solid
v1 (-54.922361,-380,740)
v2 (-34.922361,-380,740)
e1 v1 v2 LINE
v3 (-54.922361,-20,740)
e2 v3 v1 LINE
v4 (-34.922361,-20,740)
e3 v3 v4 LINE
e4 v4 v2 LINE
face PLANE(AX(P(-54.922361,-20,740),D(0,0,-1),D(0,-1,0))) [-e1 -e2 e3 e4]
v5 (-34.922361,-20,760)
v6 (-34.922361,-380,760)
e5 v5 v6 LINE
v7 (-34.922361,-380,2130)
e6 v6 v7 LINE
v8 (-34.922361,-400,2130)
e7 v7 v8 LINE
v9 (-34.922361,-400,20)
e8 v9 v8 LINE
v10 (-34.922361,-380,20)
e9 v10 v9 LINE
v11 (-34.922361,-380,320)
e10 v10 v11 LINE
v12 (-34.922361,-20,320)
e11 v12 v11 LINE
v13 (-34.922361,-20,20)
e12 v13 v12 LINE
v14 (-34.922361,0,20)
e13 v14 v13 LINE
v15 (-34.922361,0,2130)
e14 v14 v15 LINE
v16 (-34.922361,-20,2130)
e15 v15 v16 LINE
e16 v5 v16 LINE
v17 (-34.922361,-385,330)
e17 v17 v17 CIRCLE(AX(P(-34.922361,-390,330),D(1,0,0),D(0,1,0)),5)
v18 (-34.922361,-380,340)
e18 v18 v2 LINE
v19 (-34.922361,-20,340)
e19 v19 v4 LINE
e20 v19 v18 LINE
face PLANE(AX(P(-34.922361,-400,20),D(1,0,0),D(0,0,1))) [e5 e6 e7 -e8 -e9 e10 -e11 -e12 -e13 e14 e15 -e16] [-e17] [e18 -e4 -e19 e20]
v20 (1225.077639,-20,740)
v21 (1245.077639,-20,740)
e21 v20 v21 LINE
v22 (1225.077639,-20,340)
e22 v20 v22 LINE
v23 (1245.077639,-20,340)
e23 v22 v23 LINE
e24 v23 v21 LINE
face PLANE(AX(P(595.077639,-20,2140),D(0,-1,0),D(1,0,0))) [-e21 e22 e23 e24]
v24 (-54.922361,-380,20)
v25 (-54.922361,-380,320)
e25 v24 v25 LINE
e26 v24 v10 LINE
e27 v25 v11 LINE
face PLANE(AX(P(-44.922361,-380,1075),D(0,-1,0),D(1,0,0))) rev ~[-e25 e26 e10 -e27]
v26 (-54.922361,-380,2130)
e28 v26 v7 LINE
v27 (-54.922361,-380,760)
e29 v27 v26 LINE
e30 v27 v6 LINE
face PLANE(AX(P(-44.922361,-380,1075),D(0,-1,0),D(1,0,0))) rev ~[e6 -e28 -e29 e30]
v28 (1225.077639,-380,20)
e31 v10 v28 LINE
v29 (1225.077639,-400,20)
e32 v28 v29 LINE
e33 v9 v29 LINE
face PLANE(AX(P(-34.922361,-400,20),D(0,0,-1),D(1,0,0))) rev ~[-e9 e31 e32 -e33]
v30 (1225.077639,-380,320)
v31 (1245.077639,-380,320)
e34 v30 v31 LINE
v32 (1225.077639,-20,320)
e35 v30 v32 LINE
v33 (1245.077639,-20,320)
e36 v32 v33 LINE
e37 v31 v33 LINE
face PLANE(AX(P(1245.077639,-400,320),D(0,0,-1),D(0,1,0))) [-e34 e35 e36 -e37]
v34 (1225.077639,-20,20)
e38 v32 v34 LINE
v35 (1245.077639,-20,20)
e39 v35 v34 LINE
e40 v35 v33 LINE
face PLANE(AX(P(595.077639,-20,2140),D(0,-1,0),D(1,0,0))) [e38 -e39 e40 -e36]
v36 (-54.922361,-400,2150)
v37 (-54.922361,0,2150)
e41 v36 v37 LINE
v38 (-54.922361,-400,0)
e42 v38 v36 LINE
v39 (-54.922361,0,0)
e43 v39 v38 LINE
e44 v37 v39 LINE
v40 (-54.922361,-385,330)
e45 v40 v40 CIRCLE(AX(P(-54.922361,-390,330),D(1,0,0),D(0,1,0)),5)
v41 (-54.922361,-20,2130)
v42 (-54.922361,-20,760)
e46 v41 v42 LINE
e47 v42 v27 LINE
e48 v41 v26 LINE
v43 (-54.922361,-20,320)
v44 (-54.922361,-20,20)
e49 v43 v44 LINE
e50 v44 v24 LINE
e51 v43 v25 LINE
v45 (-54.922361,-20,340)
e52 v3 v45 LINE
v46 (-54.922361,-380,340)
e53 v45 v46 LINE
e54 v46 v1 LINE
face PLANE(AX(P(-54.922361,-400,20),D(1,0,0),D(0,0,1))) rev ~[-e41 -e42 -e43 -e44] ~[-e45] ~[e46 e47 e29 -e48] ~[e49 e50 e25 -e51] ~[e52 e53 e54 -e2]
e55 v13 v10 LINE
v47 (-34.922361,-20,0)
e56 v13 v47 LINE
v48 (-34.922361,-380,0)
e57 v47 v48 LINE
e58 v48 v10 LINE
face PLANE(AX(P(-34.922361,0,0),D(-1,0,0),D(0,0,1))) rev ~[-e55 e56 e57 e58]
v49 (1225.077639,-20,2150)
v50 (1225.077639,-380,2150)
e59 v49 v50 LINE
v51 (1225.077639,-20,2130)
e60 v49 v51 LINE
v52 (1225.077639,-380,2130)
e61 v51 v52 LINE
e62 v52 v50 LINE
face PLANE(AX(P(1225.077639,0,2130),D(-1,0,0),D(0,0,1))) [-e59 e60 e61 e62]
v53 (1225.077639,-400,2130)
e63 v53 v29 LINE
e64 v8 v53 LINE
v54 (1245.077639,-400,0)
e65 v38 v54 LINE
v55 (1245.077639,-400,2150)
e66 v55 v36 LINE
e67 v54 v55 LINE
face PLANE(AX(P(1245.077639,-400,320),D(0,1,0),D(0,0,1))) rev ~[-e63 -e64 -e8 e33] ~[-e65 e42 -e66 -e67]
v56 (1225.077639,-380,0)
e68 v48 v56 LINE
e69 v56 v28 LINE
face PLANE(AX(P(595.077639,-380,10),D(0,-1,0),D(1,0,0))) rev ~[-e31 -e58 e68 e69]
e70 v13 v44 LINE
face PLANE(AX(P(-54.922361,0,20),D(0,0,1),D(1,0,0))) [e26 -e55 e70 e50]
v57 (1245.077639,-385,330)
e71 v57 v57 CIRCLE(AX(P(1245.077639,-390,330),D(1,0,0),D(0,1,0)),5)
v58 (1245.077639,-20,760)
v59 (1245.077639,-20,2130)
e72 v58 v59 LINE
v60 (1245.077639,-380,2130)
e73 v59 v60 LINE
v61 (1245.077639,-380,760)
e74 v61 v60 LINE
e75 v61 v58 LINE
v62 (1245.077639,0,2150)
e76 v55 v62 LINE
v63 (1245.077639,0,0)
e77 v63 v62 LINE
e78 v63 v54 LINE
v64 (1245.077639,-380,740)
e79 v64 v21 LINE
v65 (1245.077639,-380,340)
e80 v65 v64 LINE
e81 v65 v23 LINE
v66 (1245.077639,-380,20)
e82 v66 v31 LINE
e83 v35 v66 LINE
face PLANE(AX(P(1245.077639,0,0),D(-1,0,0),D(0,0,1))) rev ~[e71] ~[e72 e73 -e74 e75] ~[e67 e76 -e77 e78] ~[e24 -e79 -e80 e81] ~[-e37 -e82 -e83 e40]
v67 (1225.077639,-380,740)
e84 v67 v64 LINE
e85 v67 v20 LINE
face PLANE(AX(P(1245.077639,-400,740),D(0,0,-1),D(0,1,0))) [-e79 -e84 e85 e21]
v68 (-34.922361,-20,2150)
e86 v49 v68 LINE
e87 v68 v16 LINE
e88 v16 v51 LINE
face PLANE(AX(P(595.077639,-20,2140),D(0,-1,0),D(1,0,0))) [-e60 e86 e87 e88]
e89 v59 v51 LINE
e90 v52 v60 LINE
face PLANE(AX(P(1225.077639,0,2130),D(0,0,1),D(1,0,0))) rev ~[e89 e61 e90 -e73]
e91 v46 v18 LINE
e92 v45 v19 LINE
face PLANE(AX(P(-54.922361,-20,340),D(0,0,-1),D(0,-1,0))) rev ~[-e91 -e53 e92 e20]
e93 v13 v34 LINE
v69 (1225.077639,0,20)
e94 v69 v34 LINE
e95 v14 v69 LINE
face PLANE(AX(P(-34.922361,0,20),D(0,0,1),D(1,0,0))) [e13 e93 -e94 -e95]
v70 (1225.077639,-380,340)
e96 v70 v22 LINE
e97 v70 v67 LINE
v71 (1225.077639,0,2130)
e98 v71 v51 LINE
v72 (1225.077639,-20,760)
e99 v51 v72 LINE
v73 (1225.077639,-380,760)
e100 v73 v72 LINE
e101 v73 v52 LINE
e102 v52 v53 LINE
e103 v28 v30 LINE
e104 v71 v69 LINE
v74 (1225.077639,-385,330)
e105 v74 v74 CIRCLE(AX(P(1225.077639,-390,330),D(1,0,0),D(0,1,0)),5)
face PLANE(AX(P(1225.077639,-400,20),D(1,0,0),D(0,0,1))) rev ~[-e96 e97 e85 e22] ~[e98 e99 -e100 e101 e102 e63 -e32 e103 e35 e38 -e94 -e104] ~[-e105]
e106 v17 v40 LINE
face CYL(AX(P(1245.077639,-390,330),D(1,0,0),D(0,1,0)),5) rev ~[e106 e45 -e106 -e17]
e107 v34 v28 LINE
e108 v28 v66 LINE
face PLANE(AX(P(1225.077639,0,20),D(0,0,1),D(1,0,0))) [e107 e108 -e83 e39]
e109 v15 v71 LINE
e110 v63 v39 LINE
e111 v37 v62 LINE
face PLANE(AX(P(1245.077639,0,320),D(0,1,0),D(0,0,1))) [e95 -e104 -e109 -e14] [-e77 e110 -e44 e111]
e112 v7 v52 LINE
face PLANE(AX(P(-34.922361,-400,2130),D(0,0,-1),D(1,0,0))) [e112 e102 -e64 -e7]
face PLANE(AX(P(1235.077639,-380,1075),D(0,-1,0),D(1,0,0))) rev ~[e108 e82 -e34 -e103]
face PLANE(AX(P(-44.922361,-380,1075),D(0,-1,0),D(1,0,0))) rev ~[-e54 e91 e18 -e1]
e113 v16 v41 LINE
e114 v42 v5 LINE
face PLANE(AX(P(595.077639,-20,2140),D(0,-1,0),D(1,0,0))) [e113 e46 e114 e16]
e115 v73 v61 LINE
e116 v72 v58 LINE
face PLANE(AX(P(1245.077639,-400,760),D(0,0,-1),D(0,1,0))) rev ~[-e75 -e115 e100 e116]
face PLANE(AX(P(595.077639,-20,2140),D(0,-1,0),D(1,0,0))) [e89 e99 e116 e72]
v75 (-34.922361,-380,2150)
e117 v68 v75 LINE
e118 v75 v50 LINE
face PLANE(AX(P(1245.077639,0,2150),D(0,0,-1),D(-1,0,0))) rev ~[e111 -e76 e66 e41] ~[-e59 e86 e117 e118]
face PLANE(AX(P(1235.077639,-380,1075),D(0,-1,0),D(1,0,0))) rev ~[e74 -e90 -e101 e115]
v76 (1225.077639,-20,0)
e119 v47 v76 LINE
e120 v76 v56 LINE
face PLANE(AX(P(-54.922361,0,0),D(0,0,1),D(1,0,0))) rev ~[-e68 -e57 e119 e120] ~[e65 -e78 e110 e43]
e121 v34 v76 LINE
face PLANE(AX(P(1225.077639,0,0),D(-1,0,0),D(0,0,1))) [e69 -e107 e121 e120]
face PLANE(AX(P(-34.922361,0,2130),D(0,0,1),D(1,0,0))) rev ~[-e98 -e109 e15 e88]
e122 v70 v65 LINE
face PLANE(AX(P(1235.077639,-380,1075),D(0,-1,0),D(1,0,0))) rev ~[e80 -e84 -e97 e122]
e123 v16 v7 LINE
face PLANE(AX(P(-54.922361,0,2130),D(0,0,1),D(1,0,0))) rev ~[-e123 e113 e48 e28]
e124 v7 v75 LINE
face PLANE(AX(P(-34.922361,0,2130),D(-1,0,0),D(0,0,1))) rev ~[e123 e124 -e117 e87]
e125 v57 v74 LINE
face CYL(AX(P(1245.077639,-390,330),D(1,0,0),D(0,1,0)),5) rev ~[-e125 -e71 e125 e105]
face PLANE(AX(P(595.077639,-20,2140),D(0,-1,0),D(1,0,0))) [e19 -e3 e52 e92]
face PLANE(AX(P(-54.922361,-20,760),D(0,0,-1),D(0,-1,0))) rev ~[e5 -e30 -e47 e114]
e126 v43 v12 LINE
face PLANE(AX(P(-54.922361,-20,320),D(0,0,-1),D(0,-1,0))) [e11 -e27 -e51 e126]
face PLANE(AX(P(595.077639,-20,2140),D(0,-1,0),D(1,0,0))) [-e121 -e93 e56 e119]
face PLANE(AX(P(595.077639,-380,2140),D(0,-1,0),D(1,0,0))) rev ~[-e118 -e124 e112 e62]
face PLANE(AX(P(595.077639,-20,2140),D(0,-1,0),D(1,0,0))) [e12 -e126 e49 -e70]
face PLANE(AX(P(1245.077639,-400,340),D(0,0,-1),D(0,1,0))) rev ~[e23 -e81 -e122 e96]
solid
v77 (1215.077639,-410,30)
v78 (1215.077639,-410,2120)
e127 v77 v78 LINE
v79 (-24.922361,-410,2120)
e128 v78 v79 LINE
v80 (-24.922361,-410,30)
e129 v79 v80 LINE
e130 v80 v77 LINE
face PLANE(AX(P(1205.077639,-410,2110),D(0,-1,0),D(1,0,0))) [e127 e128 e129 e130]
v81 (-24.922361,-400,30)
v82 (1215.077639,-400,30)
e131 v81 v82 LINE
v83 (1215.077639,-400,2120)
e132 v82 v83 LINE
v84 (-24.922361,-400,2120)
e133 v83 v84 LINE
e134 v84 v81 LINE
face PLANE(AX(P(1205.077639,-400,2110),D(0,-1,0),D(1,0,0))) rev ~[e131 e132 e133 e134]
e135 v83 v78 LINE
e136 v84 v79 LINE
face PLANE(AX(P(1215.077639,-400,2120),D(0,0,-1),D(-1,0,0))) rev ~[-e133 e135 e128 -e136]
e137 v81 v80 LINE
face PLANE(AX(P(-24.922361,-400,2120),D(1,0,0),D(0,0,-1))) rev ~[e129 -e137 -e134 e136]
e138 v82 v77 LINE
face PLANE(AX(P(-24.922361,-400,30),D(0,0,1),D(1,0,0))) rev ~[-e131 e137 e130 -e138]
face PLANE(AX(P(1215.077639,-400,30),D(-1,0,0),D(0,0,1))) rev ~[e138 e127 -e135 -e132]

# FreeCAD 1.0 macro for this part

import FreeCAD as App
import Part
import Sketcher
Q = App.Units.Quantity


def add_polygon(sketch, points):
    """Adds a closed chain of lines whose ends are joined by coincident constraints."""
    first, n = sketch.GeometryCount, len(points)
    for a, b in zip(points, points[1:] + points[:1]):
        sketch.addGeometry(Part.LineSegment(App.Vector(*a, 0), App.Vector(*b, 0)), False)
    for i in range(n):
        sketch.addConstraint(Sketcher.Constraint("Coincident", first + i, 2, first + (i + 1) % n, 1))

doc = App.newDocument("Part")
body = doc.addObject("PartDesign::Body", "Body")

sketch1 = body.newObject("Sketcher::SketchObject", "Sketch")
sketch1.AttachmentSupport = (doc.getObject("XZ_Plane"), [""])
sketch1.MapMode = "FlatFace"
add_polygon(sketch1, [(-55, 2150), (-55, 0), (1245, 0), (1245, 2150)])
add_polygon(sketch1, [(1225, 20), (-35, 20), (-35, 2130), (1225, 2130)])
sketch1.addConstraint([
    Sketcher.Constraint("Vertical", 0),
    Sketcher.Constraint("Horizontal", 1),
    Sketcher.Constraint("Vertical", 2),
    Sketcher.Constraint("Horizontal", 3),
    Sketcher.Constraint("Horizontal", 4),
    Sketcher.Constraint("Vertical", 5),
    Sketcher.Constraint("Horizontal", 6),
    Sketcher.Constraint("Vertical", 7),
    Sketcher.Constraint("PointOnObject", 0, 2, -1),
    Sketcher.Constraint("DistanceX", 1, 1, 1, 2, Q("1300 mm")),
    Sketcher.Constraint("DistanceX", 4, 2, 4, 1, Q("1260 mm")),
    Sketcher.Constraint("DistanceY", 0, 2, 0, 1, Q("2150 mm")),
    Sketcher.Constraint("DistanceY", 5, 1, 5, 2, Q("2110 mm")),
    Sketcher.Constraint("DistanceY", -1, 1, 4, 2, Q("20 mm")),
    Sketcher.Constraint("DistanceX", 0, 2, 4, 2, Q("20 mm")),
    Sketcher.Constraint("DistanceX", 0, 2, -1, 1, Q("54.922361 mm")),
])
pad1 = body.newObject("PartDesign::Pad", "Pad")
pad1.Profile = sketch1
pad1.Length = 20

sketch2 = body.newObject("Sketcher::SketchObject", "Sketch001")
sketch2.AttachmentSupport = (doc.getObject("XZ_Plane"), [""])
sketch2.MapMode = "FlatFace"
add_polygon(sketch2, [(-55, 20), (-55, 0), (-35, 0), (-35, 20)])
add_polygon(sketch2, [(1225, 20), (1225, 0), (1245, 0), (1245, 20)])
add_polygon(sketch2, [(-55, 2150), (-55, 2130), (-35, 2130), (-35, 2150)])
add_polygon(sketch2, [(1225, 2150), (1225, 2130), (1245, 2130), (1245, 2150)])
sketch2.addConstraint([
    Sketcher.Constraint("Vertical", 0),
    Sketcher.Constraint("Horizontal", 1),
    Sketcher.Constraint("Vertical", 2),
    Sketcher.Constraint("Horizontal", 3),
    Sketcher.Constraint("Vertical", 4),
    Sketcher.Constraint("Horizontal", 5),
    Sketcher.Constraint("Vertical", 6),
    Sketcher.Constraint("Horizontal", 7),
    Sketcher.Constraint("Vertical", 8),
    Sketcher.Constraint("Horizontal", 9),
    Sketcher.Constraint("Vertical", 10),
    Sketcher.Constraint("Horizontal", 11),
    Sketcher.Constraint("Vertical", 12),
    Sketcher.Constraint("Horizontal", 13),
    Sketcher.Constraint("Vertical", 14),
    Sketcher.Constraint("Horizontal", 15),
    Sketcher.Constraint("PointOnObject", 0, 2, -1),
    Sketcher.Constraint("PointOnObject", 4, 2, -1),
    Sketcher.Constraint("Horizontal", 3, 2, 6, 2),
    Sketcher.Constraint("Horizontal", 9, 2, 12, 2),
    Sketcher.Constraint("Horizontal", 11, 2, 14, 2),
    Sketcher.Constraint("Vertical", 3, 2, 8, 2),
    Sketcher.Constraint("Vertical", 2, 2, 9, 2),
    Sketcher.Constraint("Vertical", 7, 2, 12, 2),
    Sketcher.Constraint("Vertical", 6, 2, 13, 2),
    Sketcher.Constraint("Equal", 3, 5),
    Sketcher.Constraint("Equal", 15, 0),
    Sketcher.Constraint("Equal", 6, 8),
    Sketcher.Constraint("DistanceX", 1, 1, 1, 2, Q("20 mm")),
    Sketcher.Constraint("DistanceY", -1, 1, 8, 2, Q("2130 mm")),
    Sketcher.Constraint("DistanceX", 1, 2, 4, 2, Q("1260 mm")),
    Sketcher.Constraint("DistanceX", 0, 2, -1, 1, Q("54.922361 mm")),
])
pad2 = body.newObject("PartDesign::Pad", "Pad001")
pad2.Profile = sketch2
pad2.Length = 400

sketch3 = body.newObject("Sketcher::SketchObject", "Sketch002")
sketch3.AttachmentSupport = (doc.getObject("XZ_Plane"), [""])
sketch3.MapMode = "FlatFace"
sketch3.AttachmentOffset = App.Placement(App.Vector(0, 0, 400), App.Rotation())
add_polygon(sketch3, [(-55, 2130), (-55, 20), (-35, 20), (-35, 2130)])
add_polygon(sketch3, [(-35, 20), (-35, 0), (1225, 0), (1225, 20)])
add_polygon(sketch3, [(1225, 2130), (1225, 20), (1245, 20), (1245, 2130)])
add_polygon(sketch3, [(-35, 2150), (-35, 2130), (1225, 2130), (1225, 2150)])
sketch3.addConstraint([
    Sketcher.Constraint("Vertical", 0),
    Sketcher.Constraint("Horizontal", 1),
    Sketcher.Constraint("Vertical", 2),
    Sketcher.Constraint("Horizontal", 3),
    Sketcher.Constraint("Vertical", 4),
    Sketcher.Constraint("Horizontal", 5),
    Sketcher.Constraint("Vertical", 6),
    Sketcher.Constraint("Horizontal", 7),
    Sketcher.Constraint("Vertical", 8),
    Sketcher.Constraint("Horizontal", 9),
    Sketcher.Constraint("Vertical", 10),
    Sketcher.Constraint("Horizontal", 11),
    Sketcher.Constraint("Vertical", 12),
    Sketcher.Constraint("Horizontal", 13),
    Sketcher.Constraint("Vertical", 14),
    Sketcher.Constraint("Horizontal", 15),
    Sketcher.Constraint("Coincident", 7, 2, 1, 2),
    Sketcher.Constraint("Coincident", 8, 2, 6, 2),
    Sketcher.Constraint("Coincident", 12, 2, 2, 2),
    Sketcher.Constraint("Coincident", 13, 2, 11, 2),
    Sketcher.Constraint("PointOnObject", 4, 2, -1),
    Sketcher.Constraint("Equal", 3, 9),
    Sketcher.Constraint("Equal", 11, 4),
    Sketcher.Constraint("Equal", 6, 12),
    Sketcher.Constraint("DistanceX", 1, 1, 1, 2, Q("20 mm")),
    Sketcher.Constraint("DistanceX", 5, 1, 5, 2, Q("1260 mm")),
    Sketcher.Constraint("DistanceY", 0, 2, 0, 1, Q("2110 mm")),
    Sketcher.Constraint("DistanceX", 0, 2, -1, 1, Q("54.922361 mm")),
])
pad3 = body.newObject("PartDesign::Pad", "Pad002")
pad3.Profile = sketch3
pad3.Length = 20
pad3.Reversed = True

sketch4 = body.newObject("Sketcher::SketchObject", "Sketch003")
sketch4.AttachmentSupport = (doc.getObject("YZ_Plane"), [""])
sketch4.MapMode = "FlatFace"
sketch4.AttachmentOffset = App.Placement(App.Vector(0, 0, 1245.077639), App.Rotation())
add_polygon(sketch4, [(-400, 340), (-400, 320), (0, 320), (0, 340)])
add_polygon(sketch4, [(-400, 760), (-400, 740), (0, 740), (0, 760)])
sketch4.addConstraint([
    Sketcher.Constraint("Vertical", 0),
    Sketcher.Constraint("Horizontal", 1),
    Sketcher.Constraint("Vertical", 2),
    Sketcher.Constraint("Horizontal", 3),
    Sketcher.Constraint("Vertical", 4),
    Sketcher.Constraint("Horizontal", 5),
    Sketcher.Constraint("Vertical", 6),
    Sketcher.Constraint("Horizontal", 7),
    Sketcher.Constraint("PointOnObject", 1, 2, -2),
    Sketcher.Constraint("PointOnObject", 5, 2, -2),
    Sketcher.Constraint("Vertical", 3, 2, 4, 2),
    Sketcher.Constraint("Equal", 2, 4),
    Sketcher.Constraint("DistanceX", 1, 1, 1, 2, Q("400 mm")),
    Sketcher.Constraint("DistanceY", 0, 2, 0, 1, Q("20 mm")),
    Sketcher.Constraint("DistanceY", -1, 1, 0, 2, Q("320 mm")),
    Sketcher.Constraint("DistanceY", -1, 1, 4, 2, Q("740 mm")),
])
pad4 = body.newObject("PartDesign::Pad", "Pad003")
pad4.Profile = sketch4
pad4.Length = 20
pad4.Reversed = True

sketch5 = body.newObject("Sketcher::SketchObject", "Sketch004")
sketch5.AttachmentSupport = (doc.getObject("YZ_Plane"), [""])
sketch5.MapMode = "FlatFace"
sketch5.AttachmentOffset = App.Placement(App.Vector(0, 0, 1245.077639), App.Rotation())
add_polygon(sketch5, [(-400, 340), (-400, 320), (0, 320), (0, 340)])
add_polygon(sketch5, [(-400, 760), (-400, 740), (0, 740), (0, 760)])
sketch5.addConstraint([
    Sketcher.Constraint("Vertical", 0),
    Sketcher.Constraint("Horizontal", 1),
    Sketcher.Constraint("Vertical", 2),
    Sketcher.Constraint("Horizontal", 3),
    Sketcher.Constraint("Vertical", 4),
    Sketcher.Constraint("Horizontal", 5),
    Sketcher.Constraint("Vertical", 6),
    Sketcher.Constraint("Horizontal", 7),
    Sketcher.Constraint("PointOnObject", 1, 2, -2),
    Sketcher.Constraint("PointOnObject", 5, 2, -2),
    Sketcher.Constraint("Vertical", 3, 2, 4, 2),
    Sketcher.Constraint("Equal", 2, 4),
    Sketcher.Constraint("DistanceX", 1, 1, 1, 2, Q("400 mm")),
    Sketcher.Constraint("DistanceY", 0, 2, 0, 1, Q("20 mm")),
    Sketcher.Constraint("DistanceY", -1, 1, 0, 2, Q("320 mm")),
    Sketcher.Constraint("DistanceY", -1, 1, 4, 2, Q("740 mm")),
])
pad5 = body.newObject("PartDesign::Pad", "Pad004")
pad5.Profile = sketch5
pad5.Length = 20
pad5.Reversed = True

sketch6 = body.newObject("Sketcher::SketchObject", "Sketch005")
sketch6.AttachmentSupport = (doc.getObject("YZ_Plane"), [""])
sketch6.MapMode = "FlatFace"
sketch6.AttachmentOffset = App.Placement(App.Vector(0, 0, -54.922361), App.Rotation())
add_polygon(sketch6, [(-20, 760), (-20, 740), (-380, 740), (-380, 760)])
add_polygon(sketch6, [(-20, 340), (-20, 320), (-380, 320), (-380, 340)])
sketch6.addConstraint([
    Sketcher.Constraint("Vertical", 0),
    Sketcher.Constraint("Horizontal", 1),
    Sketcher.Constraint("Vertical", 2),
    Sketcher.Constraint("Horizontal", 3),
    Sketcher.Constraint("Vertical", 4),
    Sketcher.Constraint("Horizontal", 5),
    Sketcher.Constraint("Vertical", 6),
    Sketcher.Constraint("Horizontal", 7),
    Sketcher.Constraint("Vertical", 3, 2, 4, 2),
    Sketcher.Constraint("Vertical", 2, 2, 5, 2),
    Sketcher.Constraint("Equal", 2, 4),
    Sketcher.Constraint("DistanceX", 1, 2, 1, 1, Q("360 mm")),
    Sketcher.Constraint("DistanceY", 0, 2, 0, 1, Q("20 mm")),
    Sketcher.Constraint("DistanceX", 0, 2, -1, 1, Q("20 mm")),
    Sketcher.Constraint("DistanceY", -1, 1, 0, 2, Q("740 mm")),
    Sketcher.Constraint("DistanceY", -1, 1, 4, 2, Q("320 mm")),
])
pad6 = body.newObject("PartDesign::Pad", "Pad005")
pad6.Profile = sketch6
pad6.Length = 20

sketch7 = body.newObject("Sketcher::SketchObject", "Sketch006")
sketch7.AttachmentSupport = (doc.getObject("YZ_Plane"), [""])
sketch7.MapMode = "FlatFace"
sketch7.AttachmentOffset = App.Placement(App.Vector(0, 0, 1245.077639), App.Rotation())
sketch7.addGeometry(Part.Circle(App.Vector(-390, 330, 0), App.Vector(0, 0, 1), 5), False)
sketch7.addConstraint([
    Sketcher.Constraint("Diameter", 0, Q("10 mm")),
    Sketcher.Constraint("DistanceX", 0, 3, -1, 1, Q("390 mm")),
    Sketcher.Constraint("DistanceY", -1, 1, 0, 3, Q("330 mm")),
])
pocket1 = body.newObject("PartDesign::Pocket", "Pocket")
pocket1.Profile = sketch7
pocket1.Type = "ThroughAll"
body2 = doc.addObject("PartDesign::Body", "Body001")

sketch8 = body2.newObject("Sketcher::SketchObject", "Sketch007")
sketch8.AttachmentSupport = (doc.getObject("XZ_Plane001"), [""])
sketch8.MapMode = "FlatFace"
sketch8.AttachmentOffset = App.Placement(App.Vector(0, 0, 400), App.Rotation())
add_polygon(sketch8, [(-25, 2120), (-25, 30), (1215, 30), (1215, 2120)])
sketch8.addConstraint([
    Sketcher.Constraint("Vertical", 0),
    Sketcher.Constraint("Horizontal", 1),
    Sketcher.Constraint("Vertical", 2),
    Sketcher.Constraint("Horizontal", 3),
    Sketcher.Constraint("DistanceX", 1, 1, 1, 2, Q("1240 mm")),
    Sketcher.Constraint("DistanceY", 0, 2, 0, 1, Q("2090 mm")),
    Sketcher.Constraint("DistanceY", -1, 1, 0, 2, Q("30 mm")),
    Sketcher.Constraint("DistanceX", 0, 2, -1, 1, Q("24.922361 mm")),
])
pad7 = body2.newObject("PartDesign::Pad", "Pad006")
pad7.Profile = sketch8
pad7.Length = 10

doc.recompute()
